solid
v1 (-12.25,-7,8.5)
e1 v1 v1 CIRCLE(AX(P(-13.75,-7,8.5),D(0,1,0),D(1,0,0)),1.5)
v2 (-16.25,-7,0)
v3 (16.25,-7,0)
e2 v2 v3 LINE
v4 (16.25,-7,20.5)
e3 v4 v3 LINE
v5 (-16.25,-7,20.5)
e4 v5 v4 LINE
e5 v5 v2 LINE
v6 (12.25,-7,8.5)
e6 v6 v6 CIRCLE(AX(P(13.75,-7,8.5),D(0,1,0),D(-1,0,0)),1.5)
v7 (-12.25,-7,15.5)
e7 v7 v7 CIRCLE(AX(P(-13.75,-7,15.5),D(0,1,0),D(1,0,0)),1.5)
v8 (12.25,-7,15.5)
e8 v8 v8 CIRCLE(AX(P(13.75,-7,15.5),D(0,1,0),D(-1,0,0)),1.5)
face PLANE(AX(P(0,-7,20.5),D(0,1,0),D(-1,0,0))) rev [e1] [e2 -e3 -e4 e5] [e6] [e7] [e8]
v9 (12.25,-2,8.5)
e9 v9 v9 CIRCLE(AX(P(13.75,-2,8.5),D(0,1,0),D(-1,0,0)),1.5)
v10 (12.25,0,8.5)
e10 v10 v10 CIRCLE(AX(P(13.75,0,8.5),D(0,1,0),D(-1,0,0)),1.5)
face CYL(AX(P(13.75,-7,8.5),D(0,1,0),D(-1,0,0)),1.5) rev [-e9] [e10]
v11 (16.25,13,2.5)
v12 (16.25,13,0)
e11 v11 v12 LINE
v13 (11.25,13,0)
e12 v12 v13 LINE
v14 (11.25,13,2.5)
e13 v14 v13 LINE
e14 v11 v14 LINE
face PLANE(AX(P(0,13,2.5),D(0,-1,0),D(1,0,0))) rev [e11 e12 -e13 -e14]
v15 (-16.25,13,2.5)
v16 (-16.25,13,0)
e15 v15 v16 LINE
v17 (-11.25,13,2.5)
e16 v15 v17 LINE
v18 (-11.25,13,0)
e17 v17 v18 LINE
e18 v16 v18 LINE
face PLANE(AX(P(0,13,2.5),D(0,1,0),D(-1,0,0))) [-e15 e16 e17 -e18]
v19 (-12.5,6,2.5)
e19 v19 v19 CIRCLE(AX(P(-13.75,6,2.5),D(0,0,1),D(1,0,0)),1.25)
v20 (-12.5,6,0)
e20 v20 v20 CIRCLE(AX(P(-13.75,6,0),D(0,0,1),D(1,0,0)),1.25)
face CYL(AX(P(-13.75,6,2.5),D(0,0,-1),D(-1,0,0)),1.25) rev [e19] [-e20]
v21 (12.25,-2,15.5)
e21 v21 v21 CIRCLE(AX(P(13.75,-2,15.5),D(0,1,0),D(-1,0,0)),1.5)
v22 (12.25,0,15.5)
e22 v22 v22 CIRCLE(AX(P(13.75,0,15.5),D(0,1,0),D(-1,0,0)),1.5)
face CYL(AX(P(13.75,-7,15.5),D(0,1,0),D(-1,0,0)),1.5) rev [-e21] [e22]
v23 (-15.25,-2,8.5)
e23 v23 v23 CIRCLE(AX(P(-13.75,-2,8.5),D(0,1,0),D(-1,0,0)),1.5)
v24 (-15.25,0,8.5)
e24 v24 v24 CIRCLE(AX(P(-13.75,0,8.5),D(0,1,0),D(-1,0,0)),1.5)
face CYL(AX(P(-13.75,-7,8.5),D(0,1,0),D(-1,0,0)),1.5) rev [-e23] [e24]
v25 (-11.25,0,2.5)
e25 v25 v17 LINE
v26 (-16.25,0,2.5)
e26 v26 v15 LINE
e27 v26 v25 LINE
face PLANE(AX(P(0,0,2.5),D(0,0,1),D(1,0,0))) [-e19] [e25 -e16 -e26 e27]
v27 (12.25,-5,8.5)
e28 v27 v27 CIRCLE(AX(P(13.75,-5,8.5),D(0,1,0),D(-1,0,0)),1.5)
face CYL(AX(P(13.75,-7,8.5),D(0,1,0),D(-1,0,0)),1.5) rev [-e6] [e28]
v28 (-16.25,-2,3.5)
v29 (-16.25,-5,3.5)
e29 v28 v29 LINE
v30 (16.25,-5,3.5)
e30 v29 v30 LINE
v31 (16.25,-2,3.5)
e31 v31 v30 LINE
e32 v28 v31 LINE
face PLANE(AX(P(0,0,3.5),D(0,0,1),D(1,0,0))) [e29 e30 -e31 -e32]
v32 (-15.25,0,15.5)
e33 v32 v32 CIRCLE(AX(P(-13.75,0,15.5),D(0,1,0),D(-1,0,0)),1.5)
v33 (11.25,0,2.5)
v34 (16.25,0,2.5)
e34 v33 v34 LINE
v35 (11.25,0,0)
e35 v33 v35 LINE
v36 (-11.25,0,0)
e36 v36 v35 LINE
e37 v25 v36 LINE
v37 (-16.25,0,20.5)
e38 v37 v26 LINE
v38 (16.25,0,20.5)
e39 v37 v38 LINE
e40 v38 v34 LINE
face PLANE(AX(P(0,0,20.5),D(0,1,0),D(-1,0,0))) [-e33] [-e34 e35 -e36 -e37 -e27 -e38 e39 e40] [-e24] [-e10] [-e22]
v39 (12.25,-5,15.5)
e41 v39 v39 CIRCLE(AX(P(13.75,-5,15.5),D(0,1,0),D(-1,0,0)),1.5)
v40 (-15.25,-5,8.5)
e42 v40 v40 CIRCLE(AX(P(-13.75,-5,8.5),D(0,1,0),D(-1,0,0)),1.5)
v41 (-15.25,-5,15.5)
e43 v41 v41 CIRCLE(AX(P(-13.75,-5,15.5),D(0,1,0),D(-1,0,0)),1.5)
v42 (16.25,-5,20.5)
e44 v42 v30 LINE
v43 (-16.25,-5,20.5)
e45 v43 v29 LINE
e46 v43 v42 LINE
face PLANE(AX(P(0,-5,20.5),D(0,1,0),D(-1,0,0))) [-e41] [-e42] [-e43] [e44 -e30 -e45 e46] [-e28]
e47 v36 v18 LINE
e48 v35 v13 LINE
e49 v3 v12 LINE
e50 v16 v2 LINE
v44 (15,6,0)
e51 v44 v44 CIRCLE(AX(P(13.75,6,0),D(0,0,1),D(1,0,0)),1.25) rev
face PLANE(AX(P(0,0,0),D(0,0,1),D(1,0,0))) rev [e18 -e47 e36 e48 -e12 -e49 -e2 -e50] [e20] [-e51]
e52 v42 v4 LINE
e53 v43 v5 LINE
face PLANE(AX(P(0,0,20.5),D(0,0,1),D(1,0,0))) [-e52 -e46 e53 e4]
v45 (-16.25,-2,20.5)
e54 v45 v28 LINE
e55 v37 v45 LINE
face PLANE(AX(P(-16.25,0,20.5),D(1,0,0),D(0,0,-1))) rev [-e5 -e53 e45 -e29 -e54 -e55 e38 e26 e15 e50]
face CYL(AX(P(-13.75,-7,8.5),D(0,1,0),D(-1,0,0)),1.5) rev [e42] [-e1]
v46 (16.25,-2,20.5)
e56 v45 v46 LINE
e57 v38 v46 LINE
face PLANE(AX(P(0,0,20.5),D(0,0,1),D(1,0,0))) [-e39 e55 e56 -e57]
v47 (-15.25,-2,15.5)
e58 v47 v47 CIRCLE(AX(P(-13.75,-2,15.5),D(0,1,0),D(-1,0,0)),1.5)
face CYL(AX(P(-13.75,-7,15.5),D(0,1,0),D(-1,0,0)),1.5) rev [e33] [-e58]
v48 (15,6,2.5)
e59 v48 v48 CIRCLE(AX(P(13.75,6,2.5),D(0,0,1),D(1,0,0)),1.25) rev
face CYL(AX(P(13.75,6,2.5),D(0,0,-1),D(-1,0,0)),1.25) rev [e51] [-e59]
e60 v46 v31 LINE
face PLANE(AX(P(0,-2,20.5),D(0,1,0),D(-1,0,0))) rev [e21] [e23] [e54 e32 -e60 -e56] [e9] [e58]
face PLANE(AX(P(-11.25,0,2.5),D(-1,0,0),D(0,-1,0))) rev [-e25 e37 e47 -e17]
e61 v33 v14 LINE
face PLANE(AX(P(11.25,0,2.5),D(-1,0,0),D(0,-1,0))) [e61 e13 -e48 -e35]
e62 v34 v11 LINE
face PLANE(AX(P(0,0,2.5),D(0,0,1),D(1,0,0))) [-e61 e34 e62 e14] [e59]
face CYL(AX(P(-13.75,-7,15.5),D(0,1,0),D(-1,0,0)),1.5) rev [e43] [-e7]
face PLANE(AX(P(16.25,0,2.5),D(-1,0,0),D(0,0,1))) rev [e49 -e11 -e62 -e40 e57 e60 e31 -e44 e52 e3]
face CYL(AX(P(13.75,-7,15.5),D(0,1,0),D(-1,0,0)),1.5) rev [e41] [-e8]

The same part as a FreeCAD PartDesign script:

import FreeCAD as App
import Part
import Sketcher

doc = App.newDocument("Part")
body = doc.addObject("PartDesign::Body", "Body")

# Sketch on XY plane
sketch1 = doc.addObject("Sketcher::SketchObject", "Sketch")
body.addObject(sketch1)
sketch1.AttachmentSupport = (doc.XY_Plane, [""])
sketch1.MapMode = "FlatFace"
sketch1.addGeometry([
    Part.LineSegment(App.Vector(-16.2, 13, 0), App.Vector(-16.2, 0, 0)),  # 0
    Part.LineSegment(App.Vector(-16.2, 0, 0), App.Vector(-11.2, 0, 0)),  # 1
    Part.LineSegment(App.Vector(-11.2, 0, 0), App.Vector(-11.2, 13, 0)),  # 2
    Part.LineSegment(App.Vector(-11.2, 13, 0), App.Vector(-16.2, 13, 0)),  # 3
    Part.Circle(App.Vector(-13.8, 6, 0), App.Vector(0, 0, 1), 1.2),  # 4
], False)
sketch1.addConstraint([
    Sketcher.Constraint("Coincident", 0, 2, 1, 1),
    Sketcher.Constraint("Coincident", 1, 2, 2, 1),
    Sketcher.Constraint("Coincident", 2, 2, 3, 1),
    Sketcher.Constraint("Coincident", 3, 2, 0, 1),
    Sketcher.Constraint("Vertical", 0),
    Sketcher.Constraint("Horizontal", 1),
    Sketcher.Constraint("Vertical", 2),
    Sketcher.Constraint("Horizontal", 3),
    Sketcher.Constraint("PointOnObject", 0, 2, -1),
    Sketcher.Constraint("Diameter", 4, 2.5),
    Sketcher.Constraint("DistanceX", 1, 1, 1, 2, 5.0),
    Sketcher.Constraint("DistanceY", 0, 2, 0, 1, 13.0),
    Sketcher.Constraint("DistanceY", -1, 1, 4, 3, 6.0),
    Sketcher.Constraint("DistanceX", 0, 2, 4, 3, 2.5),
    Sketcher.Constraint("DistanceX", 4, 3, -1, 1, 13.75),
])
pad1 = doc.addObject("PartDesign::Pad", "Pad")
body.addObject(pad1)
pad1.Profile = sketch1
pad1.Length = 2.5
body2 = doc.addObject("PartDesign::Body", "Body001")

# Sketch on XY plane
sketch2 = doc.addObject("Sketcher::SketchObject", "Sketch001")
body2.addObject(sketch2)
sketch2.AttachmentSupport = (doc.getObject("XY_Plane001"), [""])
sketch2.MapMode = "FlatFace"
sketch2.addGeometry([
    Part.LineSegment(App.Vector(11.2, 13, 0), App.Vector(11.2, 0, 0)),  # 0
    Part.LineSegment(App.Vector(11.2, 0, 0), App.Vector(16.2, 0, 0)),  # 1
    Part.LineSegment(App.Vector(16.2, 0, 0), App.Vector(16.2, 13, 0)),  # 2
    Part.LineSegment(App.Vector(16.2, 13, 0), App.Vector(11.2, 13, 0)),  # 3
    Part.Circle(App.Vector(13.8, 6, 0), App.Vector(0, 0, 1), 1.2),  # 4
], False)
sketch2.addConstraint([
    Sketcher.Constraint("Coincident", 0, 2, 1, 1),
    Sketcher.Constraint("Coincident", 1, 2, 2, 1),
    Sketcher.Constraint("Coincident", 2, 2, 3, 1),
    Sketcher.Constraint("Coincident", 3, 2, 0, 1),
    Sketcher.Constraint("Vertical", 0),
    Sketcher.Constraint("Horizontal", 1),
    Sketcher.Constraint("Vertical", 2),
    Sketcher.Constraint("Horizontal", 3),
    Sketcher.Constraint("PointOnObject", 0, 2, -1),
    Sketcher.Constraint("Diameter", 4, 2.5),
    Sketcher.Constraint("DistanceX", 1, 1, 1, 2, 5.0),
    Sketcher.Constraint("DistanceY", 0, 2, 0, 1, 13.0),
    Sketcher.Constraint("DistanceY", -1, 1, 4, 3, 6.0),
    Sketcher.Constraint("DistanceX", 0, 2, 4, 3, 2.5),
    Sketcher.Constraint("DistanceX", -1, 1, 4, 3, 13.75),
])
pad2 = doc.addObject("PartDesign::Pad", "Pad001")
body2.addObject(pad2)
pad2.Profile = sketch2
pad2.Length = 2.5
body.AllowCompound = True
doc.recompute()

boolean = doc.addObject("PartDesign::Boolean", "Boolean")
body.addObject(boolean)
boolean.Type = "Fuse"
boolean.addObjects([body2])

# Sketch on XY plane
sketch3 = doc.addObject("Sketcher::SketchObject", "Sketch002")
body.addObject(sketch3)
sketch3.AttachmentSupport = (doc.XY_Plane, [""])
sketch3.MapMode = "FlatFace"
sketch3.addGeometry([
    Part.LineSegment(App.Vector(-16.2, 0, 0), App.Vector(-16.2, -2, 0)),  # 0
    Part.LineSegment(App.Vector(-16.2, -2, 0), App.Vector(16.2, -2, 0)),  # 1
    Part.LineSegment(App.Vector(16.2, -2, 0), App.Vector(16.2, 0, 0)),  # 2
    Part.LineSegment(App.Vector(16.2, 0, 0), App.Vector(-16.2, 0, 0)),  # 3
    Part.LineSegment(App.Vector(-16.2, -5, 0), App.Vector(-16.2, -7, 0)),  # 4
    Part.LineSegment(App.Vector(-16.2, -7, 0), App.Vector(16.2, -7, 0)),  # 5
    Part.LineSegment(App.Vector(16.2, -7, 0), App.Vector(16.2, -5, 0)),  # 6
    Part.LineSegment(App.Vector(16.2, -5, 0), App.Vector(-16.2, -5, 0)),  # 7
], False)
sketch3.addConstraint([
    Sketcher.Constraint("Coincident", 0, 2, 1, 1),
    Sketcher.Constraint("Coincident", 1, 2, 2, 1),
    Sketcher.Constraint("Coincident", 2, 2, 3, 1),
    Sketcher.Constraint("Coincident", 3, 2, 0, 1),
    Sketcher.Constraint("Coincident", 4, 2, 5, 1),
    Sketcher.Constraint("Coincident", 5, 2, 6, 1),
    Sketcher.Constraint("Coincident", 6, 2, 7, 1),
    Sketcher.Constraint("Coincident", 7, 2, 4, 1),
    Sketcher.Constraint("Vertical", 0),
    Sketcher.Constraint("Horizontal", 1),
    Sketcher.Constraint("Vertical", 2),
    Sketcher.Constraint("Horizontal", 3),
    Sketcher.Constraint("Vertical", 4),
    Sketcher.Constraint("Horizontal", 5),
    Sketcher.Constraint("Vertical", 6),
    Sketcher.Constraint("Horizontal", 7),
    Sketcher.Constraint("Symmetric", 2, 2, 3, 2, -1, 1),
    Sketcher.Constraint("Vertical", 3, 2, 4, 2),
    Sketcher.Constraint("Vertical", 2, 2, 5, 2),
    Sketcher.Constraint("Equal", 2, 4),
    Sketcher.Constraint("DistanceY", 0, 2, 0, 1, 2.0),
    Sketcher.Constraint("DistanceX", 1, 1, 1, 2, 32.5),
    Sketcher.Constraint("DistanceY", 4, 2, -1, 1, 7.0),
])
pad3 = doc.addObject("PartDesign::Pad", "Pad002")
body.addObject(pad3)
pad3.Profile = sketch3
pad3.Length = 20.5

# Sketch on XY plane
sketch4 = doc.addObject("Sketcher::SketchObject", "Sketch003")
body.addObject(sketch4)
sketch4.AttachmentSupport = (doc.XY_Plane, [""])
sketch4.MapMode = "FlatFace"
sketch4.addGeometry([
    Part.LineSegment(App.Vector(-16.2, -2, 0), App.Vector(-16.2, -5, 0)),
    Part.LineSegment(App.Vector(-16.2, -5, 0), App.Vector(16.2, -5, 0)),
    Part.LineSegment(App.Vector(16.2, -5, 0), App.Vector(16.2, -2, 0)),
    Part.LineSegment(App.Vector(16.2, -2, 0), App.Vector(-16.2, -2, 0)),
], False)
sketch4.addConstraint([
    Sketcher.Constraint("Coincident", 0, 2, 1, 1),
    Sketcher.Constraint("Coincident", 1, 2, 2, 1),
    Sketcher.Constraint("Coincident", 2, 2, 3, 1),
    Sketcher.Constraint("Coincident", 3, 2, 0, 1),
    Sketcher.Constraint("Vertical", 0),
    Sketcher.Constraint("Horizontal", 1),
    Sketcher.Constraint("Vertical", 2),
    Sketcher.Constraint("Horizontal", 3),
    Sketcher.Constraint("DistanceY", 0, 2, 0, 1, 3.0),
    Sketcher.Constraint("DistanceX", 1, 1, 1, 2, 32.5),
    Sketcher.Constraint("DistanceY", 0, 2, -1, 1, 5.0),
    Sketcher.Constraint("DistanceX", 0, 2, -1, 1, 16.25),
])
pad4 = doc.addObject("PartDesign::Pad", "Pad003")
body.addObject(pad4)
pad4.Profile = sketch4
pad4.Length = 3.5

# Sketch on XZ plane
sketch5 = doc.addObject("Sketcher::SketchObject", "Sketch004")
body.addObject(sketch5)
sketch5.AttachmentSupport = (doc.XZ_Plane, [""])
sketch5.MapMode = "FlatFace"
sketch5.addGeometry([
    Part.Circle(App.Vector(13.8, 8.5, 0), App.Vector(0, 0, 1), 1.5),
    Part.Circle(App.Vector(13.8, 15.5, 0), App.Vector(0, 0, 1), 1.5),
    Part.Circle(App.Vector(-13.8, 15.5, 0), App.Vector(0, 0, 1), 1.5),
    Part.Circle(App.Vector(-13.8, 8.5, 0), App.Vector(0, 0, 1), 1.5),
], False)
sketch5.addConstraint([
    Sketcher.Constraint("Equal", 0, 1),
    Sketcher.Constraint("Equal", 1, 2),
    Sketcher.Constraint("Equal", 2, 3),
    Sketcher.Constraint("Symmetric", 1, 3, 2, 3, -2),
    Sketcher.Constraint("Symmetric", 0, 3, 3, 3, -2),
    Sketcher.Constraint("Vertical", 0, 3, 1, 3),
    Sketcher.Constraint("Diameter", 0, 3.0),
    Sketcher.Constraint("DistanceY", 0, 3, 1, 3, 7.0),
    Sketcher.Constraint("DistanceY", -1, 1, 0, 3, 8.5),
    Sketcher.Constraint("DistanceX", 2, 3, 1, 3, 27.5),
])
pocket1 = doc.addObject("PartDesign::Pocket", "Pocket")
body.addObject(pocket1)
pocket1.Profile = sketch5
pocket1.Type = "ThroughAll"
pocket1.Midplane = True

doc.recompute()
